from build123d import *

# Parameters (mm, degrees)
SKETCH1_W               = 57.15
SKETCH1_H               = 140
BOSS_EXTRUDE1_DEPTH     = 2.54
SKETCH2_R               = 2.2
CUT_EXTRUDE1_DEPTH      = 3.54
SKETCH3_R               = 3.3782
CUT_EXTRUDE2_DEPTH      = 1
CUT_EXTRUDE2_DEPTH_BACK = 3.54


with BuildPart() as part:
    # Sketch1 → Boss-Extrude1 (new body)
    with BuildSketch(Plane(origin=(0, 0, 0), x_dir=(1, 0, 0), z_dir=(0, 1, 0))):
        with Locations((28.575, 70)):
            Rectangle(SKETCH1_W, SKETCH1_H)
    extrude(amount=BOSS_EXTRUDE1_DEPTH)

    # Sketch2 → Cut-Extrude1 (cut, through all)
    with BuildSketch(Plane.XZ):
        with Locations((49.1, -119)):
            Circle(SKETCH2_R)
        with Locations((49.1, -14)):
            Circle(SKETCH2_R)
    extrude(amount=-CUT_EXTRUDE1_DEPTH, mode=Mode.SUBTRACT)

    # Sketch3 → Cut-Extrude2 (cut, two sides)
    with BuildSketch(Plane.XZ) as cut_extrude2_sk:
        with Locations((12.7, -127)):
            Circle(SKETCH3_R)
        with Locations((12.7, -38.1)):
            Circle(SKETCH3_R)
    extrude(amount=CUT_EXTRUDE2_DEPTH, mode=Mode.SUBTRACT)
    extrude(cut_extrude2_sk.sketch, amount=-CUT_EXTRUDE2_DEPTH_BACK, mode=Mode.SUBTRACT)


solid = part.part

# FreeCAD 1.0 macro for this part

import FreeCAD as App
import Part
import Sketcher


def add_polygon(sketch, points):
    """Adds a closed chain of lines whose ends are joined by coincident constraints."""
    first, n = sketch.GeometryCount, len(points)
    for a, b in zip(points, points[1:] + points[:1]):
        sketch.addGeometry(Part.LineSegment(App.Vector(*a, 0), App.Vector(*b, 0)), False)
    for i in range(n):
        sketch.addConstraint(Sketcher.Constraint("Coincident", first + i, 2, first + (i + 1) % n, 1))

doc = App.newDocument("Part")
body = doc.addObject("PartDesign::Body", "Body")

# Sketch on XZ plane
sketch1 = doc.addObject("Sketcher::SketchObject", "Sketch")
body.addObject(sketch1)
sketch1.AttachmentSupport = (doc.XZ_Plane, [""])
sketch1.MapMode = "FlatFace"
add_polygon(sketch1, [(0, -140), (0, 0), (57, 0), (57, -140)])  # lines 0-3
sketch1.addConstraint([
    Sketcher.Constraint("Vertical", 0),
    Sketcher.Constraint("Horizontal", 1),
    Sketcher.Constraint("Vertical", 2),
    Sketcher.Constraint("Horizontal", 3),
    Sketcher.Constraint("Coincident", 0, 2, -1, 1),
    Sketcher.Constraint("DistanceY", 0, 1, 0, 2, 140.0),
    Sketcher.Constraint("DistanceX", 1, 1, 1, 2, 57.15),
])
pad1 = doc.addObject("PartDesign::Pad", "Pad")
body.addObject(pad1)
pad1.Profile = sketch1
pad1.Length = 2.54
pad1.Reversed = True

# Sketch on XZ plane
sketch2 = doc.addObject("Sketcher::SketchObject", "Sketch001")
body.addObject(sketch2)
sketch2.AttachmentSupport = (doc.XZ_Plane, [""])
sketch2.MapMode = "FlatFace"
sketch2.addGeometry([
    Part.Circle(App.Vector(49.1, -119, 0), App.Vector(0, 0, 1), 2.2),
    Part.Circle(App.Vector(49.1, -14, 0), App.Vector(0, 0, 1), 2.2),
], False)
sketch2.addConstraint([
    Sketcher.Constraint("Equal", 0, 1),
    Sketcher.Constraint("Vertical", 0, 3, 1, 3),
    Sketcher.Constraint("Diameter", 0, 4.4),
    Sketcher.Constraint("DistanceY", 0, 3, -1, 1, 119.0),
    Sketcher.Constraint("DistanceY", 1, 3, -1, 1, 14.0),
    Sketcher.Constraint("DistanceX", -1, 1, 0, 3, 49.1),
])
pocket1 = doc.addObject("PartDesign::Pocket", "Pocket")
body.addObject(pocket1)
pocket1.Profile = sketch2
pocket1.Type = "ThroughAll"

# Sketch on XZ plane
sketch3 = doc.addObject("Sketcher::SketchObject", "Sketch002")
body.addObject(sketch3)
sketch3.AttachmentSupport = (doc.XZ_Plane, [""])
sketch3.MapMode = "FlatFace"
sketch3.addGeometry([
    Part.Circle(App.Vector(12.7, -127, 0), App.Vector(0, 0, 1), 3.4),
    Part.Circle(App.Vector(12.7, -38.1, 0), App.Vector(0, 0, 1), 3.4),
], False)
sketch3.addConstraint([
    Sketcher.Constraint("Equal", 0, 1),
    Sketcher.Constraint("Vertical", 0, 3, 1, 3),
    Sketcher.Constraint("DistanceY", 0, 3, -1, 1, 127.0),
    Sketcher.Constraint("Diameter", 0, 6.7564),
    Sketcher.Constraint("DistanceX", -1, 1, 0, 3, 12.7),
    Sketcher.Constraint("DistanceY", 1, 3, -1, 1, 38.1),
])
pocket2 = doc.addObject("PartDesign::Pocket", "Pocket001")
body.addObject(pocket2)
pocket2.Profile = sketch3
pocket2.Type = "ThroughAll"
pocket2.Midplane = True

doc.recompute()
